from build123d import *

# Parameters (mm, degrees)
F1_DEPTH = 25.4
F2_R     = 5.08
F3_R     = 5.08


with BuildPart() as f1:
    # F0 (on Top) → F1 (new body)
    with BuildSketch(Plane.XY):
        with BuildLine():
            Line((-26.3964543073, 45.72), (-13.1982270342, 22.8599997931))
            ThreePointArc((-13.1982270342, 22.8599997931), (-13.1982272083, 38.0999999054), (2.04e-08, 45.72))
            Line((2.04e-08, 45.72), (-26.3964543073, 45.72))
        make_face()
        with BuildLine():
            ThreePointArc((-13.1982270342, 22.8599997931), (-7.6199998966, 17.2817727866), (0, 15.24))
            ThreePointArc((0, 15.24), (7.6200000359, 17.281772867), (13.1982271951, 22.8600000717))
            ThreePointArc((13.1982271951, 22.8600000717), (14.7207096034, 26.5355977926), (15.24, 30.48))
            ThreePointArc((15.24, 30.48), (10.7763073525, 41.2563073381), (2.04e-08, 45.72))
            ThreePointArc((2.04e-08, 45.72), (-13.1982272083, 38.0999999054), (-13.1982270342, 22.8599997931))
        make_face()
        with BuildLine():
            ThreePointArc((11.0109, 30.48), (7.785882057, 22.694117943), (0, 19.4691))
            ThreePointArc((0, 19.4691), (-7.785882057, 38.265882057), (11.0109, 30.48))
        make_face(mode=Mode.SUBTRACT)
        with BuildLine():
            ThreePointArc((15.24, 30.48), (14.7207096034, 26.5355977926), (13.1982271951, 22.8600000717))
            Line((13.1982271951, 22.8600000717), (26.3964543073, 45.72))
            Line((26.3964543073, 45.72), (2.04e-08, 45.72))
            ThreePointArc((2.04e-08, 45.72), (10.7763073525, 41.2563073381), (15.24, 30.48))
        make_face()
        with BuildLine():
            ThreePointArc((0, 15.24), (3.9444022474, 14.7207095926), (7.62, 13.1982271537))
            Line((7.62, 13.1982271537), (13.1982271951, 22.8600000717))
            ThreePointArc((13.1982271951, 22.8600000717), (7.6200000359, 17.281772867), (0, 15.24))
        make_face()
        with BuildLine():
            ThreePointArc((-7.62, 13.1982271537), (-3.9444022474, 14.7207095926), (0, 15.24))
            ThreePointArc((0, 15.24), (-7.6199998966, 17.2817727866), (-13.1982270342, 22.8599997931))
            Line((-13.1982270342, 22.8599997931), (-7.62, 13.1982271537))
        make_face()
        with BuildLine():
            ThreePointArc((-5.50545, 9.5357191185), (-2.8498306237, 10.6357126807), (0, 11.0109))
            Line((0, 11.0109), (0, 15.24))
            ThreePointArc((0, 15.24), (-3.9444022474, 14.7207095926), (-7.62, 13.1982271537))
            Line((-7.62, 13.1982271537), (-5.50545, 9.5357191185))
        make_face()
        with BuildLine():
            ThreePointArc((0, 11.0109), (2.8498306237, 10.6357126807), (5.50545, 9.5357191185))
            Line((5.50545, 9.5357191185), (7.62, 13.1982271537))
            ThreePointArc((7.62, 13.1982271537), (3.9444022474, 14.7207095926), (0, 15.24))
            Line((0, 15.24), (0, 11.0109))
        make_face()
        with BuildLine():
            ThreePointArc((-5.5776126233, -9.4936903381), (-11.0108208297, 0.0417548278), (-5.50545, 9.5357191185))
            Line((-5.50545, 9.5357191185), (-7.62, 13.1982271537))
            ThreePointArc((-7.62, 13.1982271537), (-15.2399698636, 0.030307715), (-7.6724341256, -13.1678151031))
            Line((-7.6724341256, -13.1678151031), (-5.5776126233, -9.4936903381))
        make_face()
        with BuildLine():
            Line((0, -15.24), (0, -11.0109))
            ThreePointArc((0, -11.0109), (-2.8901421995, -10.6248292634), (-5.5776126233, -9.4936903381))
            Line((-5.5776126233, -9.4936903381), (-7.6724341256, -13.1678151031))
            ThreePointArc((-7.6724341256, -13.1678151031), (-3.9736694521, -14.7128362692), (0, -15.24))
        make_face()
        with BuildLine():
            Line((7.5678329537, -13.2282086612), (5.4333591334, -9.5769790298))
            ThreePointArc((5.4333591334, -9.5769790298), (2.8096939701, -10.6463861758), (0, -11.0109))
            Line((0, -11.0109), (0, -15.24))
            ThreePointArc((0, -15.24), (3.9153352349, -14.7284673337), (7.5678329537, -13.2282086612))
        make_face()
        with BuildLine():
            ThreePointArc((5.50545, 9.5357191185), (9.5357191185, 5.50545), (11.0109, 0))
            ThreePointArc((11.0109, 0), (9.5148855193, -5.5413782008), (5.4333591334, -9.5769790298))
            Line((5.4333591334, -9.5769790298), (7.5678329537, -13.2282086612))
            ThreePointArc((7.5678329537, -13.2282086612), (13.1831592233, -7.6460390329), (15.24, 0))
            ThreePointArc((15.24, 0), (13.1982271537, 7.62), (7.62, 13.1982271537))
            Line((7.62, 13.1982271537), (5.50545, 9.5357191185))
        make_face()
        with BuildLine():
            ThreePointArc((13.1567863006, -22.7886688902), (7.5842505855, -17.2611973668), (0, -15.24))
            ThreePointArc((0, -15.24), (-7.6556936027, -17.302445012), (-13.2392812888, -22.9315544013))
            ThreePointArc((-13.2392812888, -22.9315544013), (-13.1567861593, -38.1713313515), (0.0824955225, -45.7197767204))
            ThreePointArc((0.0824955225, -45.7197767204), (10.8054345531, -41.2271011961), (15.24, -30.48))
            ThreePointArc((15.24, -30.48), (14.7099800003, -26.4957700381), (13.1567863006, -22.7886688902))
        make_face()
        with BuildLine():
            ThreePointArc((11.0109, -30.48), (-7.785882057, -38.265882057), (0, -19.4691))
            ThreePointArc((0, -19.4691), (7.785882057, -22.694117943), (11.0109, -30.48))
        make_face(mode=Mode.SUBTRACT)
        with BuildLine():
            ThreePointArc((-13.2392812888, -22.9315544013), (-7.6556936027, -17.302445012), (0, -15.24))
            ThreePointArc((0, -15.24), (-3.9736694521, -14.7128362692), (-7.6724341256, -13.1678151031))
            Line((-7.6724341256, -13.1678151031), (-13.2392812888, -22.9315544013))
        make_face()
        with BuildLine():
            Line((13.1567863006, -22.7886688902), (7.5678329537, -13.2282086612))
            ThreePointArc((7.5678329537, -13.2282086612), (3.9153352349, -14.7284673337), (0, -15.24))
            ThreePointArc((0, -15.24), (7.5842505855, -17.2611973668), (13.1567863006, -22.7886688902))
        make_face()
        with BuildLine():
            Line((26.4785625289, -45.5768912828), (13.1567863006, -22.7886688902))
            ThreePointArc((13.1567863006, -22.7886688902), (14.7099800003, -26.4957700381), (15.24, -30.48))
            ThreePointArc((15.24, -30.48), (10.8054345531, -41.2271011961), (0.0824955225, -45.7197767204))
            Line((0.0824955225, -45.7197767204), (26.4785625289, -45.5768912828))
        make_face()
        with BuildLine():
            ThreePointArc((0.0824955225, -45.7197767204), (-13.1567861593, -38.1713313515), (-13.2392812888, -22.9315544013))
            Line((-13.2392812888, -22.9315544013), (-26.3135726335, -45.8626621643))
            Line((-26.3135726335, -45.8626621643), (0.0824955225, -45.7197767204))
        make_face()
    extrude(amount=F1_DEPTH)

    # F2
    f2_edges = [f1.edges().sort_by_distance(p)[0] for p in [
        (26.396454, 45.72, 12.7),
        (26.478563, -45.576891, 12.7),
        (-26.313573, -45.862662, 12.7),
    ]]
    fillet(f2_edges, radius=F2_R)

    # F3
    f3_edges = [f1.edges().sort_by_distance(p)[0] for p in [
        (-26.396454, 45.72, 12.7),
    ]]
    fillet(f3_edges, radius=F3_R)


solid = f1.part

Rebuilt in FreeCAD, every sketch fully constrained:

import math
import FreeCAD as App
import Part
import Sketcher

V = App.Vector
Q = App.Units.Quantity


def edges_at(feature, points):
    """Names of the edges that pass closest to the given points."""
    edges = feature.Shape.Edges
    near = lambda p: min(range(len(edges)), key=lambda i: edges[i].distToShape(Part.Vertex(*p))[0])
    return sorted({f"Edge{near(p) + 1}" for p in points})

doc = App.newDocument("Part")
params = doc.addObject("Spreadsheet::Sheet", "Params")
for row, (alias, value) in enumerate([
    ("sketch1_radius", "0.6 in"),
    ("pad1_length", "1 in"),
    ("fillet_radius", "0.2 in"),
    ("fillet2_radius", "0.2 in"),
], start=1):
    params.set(f"A{row}", alias)
    params.set(f"B{row}", "=" + value)
    params.setAlias(f"B{row}", alias)

body = doc.addObject("PartDesign::Body", "Body")

# Sketch on XY plane
sketch1 = doc.addObject("Sketcher::SketchObject", "Sketch")
body.addObject(sketch1)
sketch1.AttachmentSupport = (doc.XY_Plane, [""])
sketch1.MapMode = "FlatFace"
sketch1.addGeometry([
    Part.LineSegment(V(-26, 46, 0), V(-8, 13, 0)),  # 0
    Part.ArcOfCircle(Part.Circle(V(0, 0, 0), V(0, 0, 1), 15), math.radians(120), math.radians(240)),  # 1
    Part.LineSegment(V(-8, -13, 0), V(-13, -23, 0)),  # 2
    Part.LineSegment(V(-13, -23, 0), V(-26, -46, 0)),  # 3
    Part.LineSegment(V(-26, -46, 0), V(0, -46, 0)),  # 4
    Part.LineSegment(V(0, -46, 0), V(26, -46, 0)),  # 5
    Part.LineSegment(V(26, -46, 0), V(13, -23, 0)),  # 6
    Part.LineSegment(V(13, -23, 0), V(8, -13, 0)),  # 7
    Part.ArcOfCircle(Part.Circle(V(0, 0, 0), V(0, 0, 1), 15), math.radians(-60), math.radians(0)),  # 8
    Part.ArcOfCircle(Part.Circle(V(0, 0, 0), V(0, 0, 1), 15), math.radians(0), math.radians(60)),  # 9
    Part.LineSegment(V(8, 13, 0), V(13, 23, 0)),  # 10
    Part.LineSegment(V(13, 23, 0), V(26, 46, 0)),  # 11
    Part.LineSegment(V(26, 46, 0), V(-26, 46, 0)),  # 12
    Part.ArcOfCircle(Part.Circle(V(0, 0, 0), V(0, 0, 1), 11), math.radians(-120), math.radians(-90)),  # 13
    Part.ArcOfCircle(Part.Circle(V(0, 0, 0), V(0, 0, 1), 11), math.radians(120), math.radians(240)),  # 14
    Part.ArcOfCircle(Part.Circle(V(0, 0, 0), V(0, 0, 1), 11), math.radians(90), math.radians(120)),  # 15
    Part.ArcOfCircle(Part.Circle(V(0, 0, 0), V(0, 0, 1), 11), math.radians(60), math.radians(90)),  # 16
    Part.ArcOfCircle(Part.Circle(V(0, 0, 0), V(0, 0, 1), 11), math.radians(0), math.radians(60)),  # 17
    Part.ArcOfCircle(Part.Circle(V(0, 0, 0), V(0, 0, 1), 11), math.radians(-90), math.radians(0)),  # 18
    Part.ArcOfCircle(Part.Circle(V(0, 30, 0), V(0, 0, 1), 11), math.radians(0), math.radians(270)),  # 19
    Part.ArcOfCircle(Part.Circle(V(0, 30, 0), V(0, 0, 1), 11), math.radians(-90), math.radians(0)),  # 20
    Part.ArcOfCircle(Part.Circle(V(0, -30, 0), V(0, 0, 1), 11), math.radians(90), math.radians(360)),  # 21
    Part.ArcOfCircle(Part.Circle(V(0, -30, 0), V(0, 0, 1), 11), math.radians(0), math.radians(90)),  # 22
], False)
sketch1.addConstraint([
    Sketcher.Constraint("Coincident", 0, 2, 1, 1),
    Sketcher.Constraint("Coincident", 1, 2, 2, 1),
    Sketcher.Constraint("Coincident", 2, 2, 3, 1),
    Sketcher.Constraint("Coincident", 3, 2, 4, 1),
    Sketcher.Constraint("Coincident", 4, 2, 5, 1),
    Sketcher.Constraint("Coincident", 5, 2, 6, 1),
    Sketcher.Constraint("Coincident", 6, 2, 7, 1),
    Sketcher.Constraint("Coincident", 7, 2, 8, 1),
    Sketcher.Constraint("Tangent", 8, 2, 9, 1),
    Sketcher.Constraint("Coincident", 9, 2, 10, 1),
    Sketcher.Constraint("Coincident", 10, 2, 11, 1),
    Sketcher.Constraint("Coincident", 11, 2, 12, 1),
    Sketcher.Constraint("Coincident", 12, 2, 0, 1),
    Sketcher.Constraint("Tangent", 13, 1, 14, 2),
    Sketcher.Constraint("Tangent", 14, 1, 15, 2),
    Sketcher.Constraint("Tangent", 15, 1, 16, 2),
    Sketcher.Constraint("Tangent", 16, 1, 17, 2),
    Sketcher.Constraint("Tangent", 17, 1, 18, 2),
    Sketcher.Constraint("Tangent", 18, 1, 13, 2),
    Sketcher.Constraint("Tangent", 19, 1, 20, 2),
    Sketcher.Constraint("Coincident", 20, 1, 19, 2),
    Sketcher.Constraint("Tangent", 21, 1, 22, 2),
    Sketcher.Constraint("Coincident", 22, 1, 21, 2),
    Sketcher.Constraint("Horizontal", 12),
    Sketcher.Constraint("Coincident", 1, 3, -1, 1),
    Sketcher.Constraint("Coincident", 8, 3, -1, 1),
    Sketcher.Constraint("Coincident", 13, 3, -1, 1),
    Sketcher.Constraint("Coincident", 15, 3, -1, 1),
    Sketcher.Constraint("Equal", 1, 8),
    Sketcher.Constraint("Equal", 8, 9),
    Sketcher.Constraint("Equal", 15, 16),
    Sketcher.Constraint("Equal", 18, 19),
    Sketcher.Constraint("Equal", 20, 21),
    Sketcher.Constraint("Symmetric", 19, 3, 21, 3, -1, 1),
    Sketcher.Constraint("Symmetric", 19, 1, 22, 1, -1),
    Sketcher.Constraint("PointOnObject", 8, 2, -1),
    Sketcher.Constraint("PointOnObject", 15, 1, -2),
    Sketcher.Constraint("PointOnObject", 17, 1, -1),
    Sketcher.Constraint("PointOnObject", 18, 1, -2),
    Sketcher.Constraint("PointOnObject", 20, 1, -2),
    Sketcher.Constraint("PointOnObject", 21, 1, -2),
    Sketcher.Constraint("Parallel", 2, 3),
    Sketcher.Constraint("Parallel", 4, 5),
    Sketcher.Constraint("Parallel", 6, 7),
    Sketcher.Constraint("Parallel", 10, 11),
    Sketcher.Constraint("Horizontal", 0, 2, 9, 2),
    Sketcher.Constraint("Horizontal", 14, 1, 16, 1),
    Sketcher.Constraint("Horizontal", 20, 3, 19, 1),
    Sketcher.Constraint("Equal", 3, 4),
    Sketcher.Constraint("Equal", 4, 5),
    Sketcher.Constraint("Equal", 5, 6),
    Sketcher.Constraint("Equal", 6, 11),
    Sketcher.Constraint("Radius", 1, Q("0.6 in")),
    Sketcher.Constraint("Angle", 0, Q("-60 deg")),
    Sketcher.Constraint("Angle", 10, Q("60 deg")),
    Sketcher.Constraint("DistanceY", -1, 1, 19, 3, Q("1.2 in")),
    Sketcher.Constraint("DistanceX", 0, 2, -1, 1, Q("0.3 in")),
    Sketcher.Constraint("DistanceY", -1, 1, 10, 2, Q("0.9 in")),
    Sketcher.Constraint("DistanceY", -1, 1, 11, 2, Q("1.8 in")),
    Sketcher.Constraint("Radius", 13, Q("0.4335 in")),
    Sketcher.Constraint("Distance", 7, 11.07424),
    Sketcher.Constraint("DistanceX", 2, 2, -1, 1, 13.239281),
    Sketcher.Constraint("DistanceY", 5, 2, -1, 1, 45.576891),
    Sketcher.Constraint("DistanceY", 6, 2, -1, 1, 22.788669),
    Sketcher.Constraint("DistanceY", 13, 1, -1, 1, 9.49369),
    Sketcher.Constraint("DistanceX", 14, 1, -1, 1, 5.50545),
    Sketcher.Constraint("DistanceY", 2, 2, 1, 2, 9.763739),
])
sketch1.setExpression("Constraints[52]", "Params.sketch1_radius")
pad1 = doc.addObject("PartDesign::Pad", "Pad")
body.addObject(pad1)
pad1.Profile = sketch1
pad1.setExpression("Length", "Params.pad1_length")
doc.recompute()

fillet = doc.addObject("PartDesign::Fillet", "Fillet")
body.addObject(fillet)
fillet.Base = (pad1, edges_at(pad1, [(26.396, 45.72, 12.7), (26.479, -45.577, 12.7), (-26.314, -45.863, 12.7)]))
fillet.setExpression("Radius", "Params.fillet_radius")
doc.recompute()

fillet2 = doc.addObject("PartDesign::Fillet", "Fillet001")
body.addObject(fillet2)
fillet2.Base = (fillet, edges_at(fillet, [(-26.396, 45.72, 12.7)]))
fillet2.setExpression("Radius", "Params.fillet2_radius")

doc.recompute()
